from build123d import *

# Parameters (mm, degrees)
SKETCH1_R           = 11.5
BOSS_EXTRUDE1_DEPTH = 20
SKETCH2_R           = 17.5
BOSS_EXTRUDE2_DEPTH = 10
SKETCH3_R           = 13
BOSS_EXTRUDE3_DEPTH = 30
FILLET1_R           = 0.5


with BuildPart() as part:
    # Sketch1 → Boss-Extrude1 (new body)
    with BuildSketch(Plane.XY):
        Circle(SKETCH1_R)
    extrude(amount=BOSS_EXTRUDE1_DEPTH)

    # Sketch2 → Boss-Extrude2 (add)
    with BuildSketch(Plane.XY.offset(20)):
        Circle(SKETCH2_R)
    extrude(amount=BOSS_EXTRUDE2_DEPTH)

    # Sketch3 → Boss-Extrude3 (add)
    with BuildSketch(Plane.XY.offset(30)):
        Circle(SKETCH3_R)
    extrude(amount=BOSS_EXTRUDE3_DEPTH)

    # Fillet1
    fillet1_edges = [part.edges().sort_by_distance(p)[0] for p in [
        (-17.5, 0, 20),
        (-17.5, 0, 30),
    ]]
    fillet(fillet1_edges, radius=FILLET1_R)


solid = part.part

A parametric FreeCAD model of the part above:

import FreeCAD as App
import Part
import Sketcher
from FreeCAD import Vector
Q = App.Units.Quantity


def edges_at(feature, points):
    """Names of the edges that pass closest to the given points."""
    edges = feature.Shape.Edges
    near = lambda p: min(range(len(edges)), key=lambda i: edges[i].distToShape(Part.Vertex(*p))[0])
    return sorted({f"Edge{near(p) + 1}" for p in points})

doc = App.newDocument("Part")
params = doc.addObject("Spreadsheet::Sheet", "Params")
for row, (alias, value) in enumerate([
    ("sketch1_diameter", "23 mm"),
    ("pad1_length", "20 mm"),
    ("sketch2_diameter", "35 mm"),
    ("pad2_length", "10 mm"),
    ("sketch3_diameter", "26 mm"),
    ("pad3_length", "30 mm"),
    ("fillet_radius", "0.5 mm"),
], start=1):
    params.set(f"A{row}", alias)
    params.set(f"B{row}", "=" + value)
    params.setAlias(f"B{row}", alias)

body = doc.addObject("PartDesign::Body", "Body")

# Sketch on XY plane
sketch1 = body.newObject("Sketcher::SketchObject", "Sketch")
sketch1.AttachmentSupport = (doc.getObject("XY_Plane"), [""])
sketch1.MapMode = "FlatFace"
sketch1.addGeometry(Part.Circle(Vector(0, 0, 0), Vector(0, 0, 1), 12), False)
sketch1.addConstraint([
    Sketcher.Constraint("Coincident", 0, 3, -1, 1),
    Sketcher.Constraint("Diameter", 0, Q("23 mm")),
])
sketch1.setExpression("Constraints[1]", "Params.sketch1_diameter")
pad1 = body.newObject("PartDesign::Pad", "Pad")
pad1.Profile = sketch1
pad1.setExpression("Length", "Params.pad1_length")

# Sketch on XY plane
sketch2 = body.newObject("Sketcher::SketchObject", "Sketch001")
sketch2.AttachmentSupport = (doc.getObject("XY_Plane"), [""])
sketch2.MapMode = "FlatFace"
sketch2.AttachmentOffset = App.Placement(Vector(0, 0, 20), App.Rotation())
sketch2.addGeometry(Part.Circle(Vector(0, 0, 0), Vector(0, 0, 1), 18), False)
sketch2.addConstraint([
    Sketcher.Constraint("Coincident", 0, 3, -1, 1),
    Sketcher.Constraint("Diameter", 0, Q("35 mm")),
])
sketch2.setExpression("Constraints[1]", "Params.sketch2_diameter")
pad2 = body.newObject("PartDesign::Pad", "Pad001")
pad2.Profile = sketch2
pad2.setExpression("Length", "Params.pad2_length")

# Sketch on XY plane
sketch3 = body.newObject("Sketcher::SketchObject", "Sketch002")
sketch3.AttachmentSupport = (doc.getObject("XY_Plane"), [""])
sketch3.MapMode = "FlatFace"
sketch3.AttachmentOffset = App.Placement(Vector(0, 0, 30), App.Rotation())
sketch3.addGeometry(Part.Circle(Vector(0, 0, 0), Vector(0, 0, 1), 13), False)
sketch3.addConstraint([
    Sketcher.Constraint("Coincident", 0, 3, -1, 1),
    Sketcher.Constraint("Diameter", 0, Q("26 mm")),
])
sketch3.setExpression("Constraints[1]", "Params.sketch3_diameter")
pad3 = body.newObject("PartDesign::Pad", "Pad002")
pad3.Profile = sketch3
pad3.setExpression("Length", "Params.pad3_length")
doc.recompute()

fillet = body.newObject("PartDesign::Fillet", "Fillet")
fillet.Base = (pad3, edges_at(pad3, [(-17.5, 0, 20), (-17.5, 0, 30)]))
fillet.setExpression("Radius", "Params.fillet_radius")

doc.recompute()
